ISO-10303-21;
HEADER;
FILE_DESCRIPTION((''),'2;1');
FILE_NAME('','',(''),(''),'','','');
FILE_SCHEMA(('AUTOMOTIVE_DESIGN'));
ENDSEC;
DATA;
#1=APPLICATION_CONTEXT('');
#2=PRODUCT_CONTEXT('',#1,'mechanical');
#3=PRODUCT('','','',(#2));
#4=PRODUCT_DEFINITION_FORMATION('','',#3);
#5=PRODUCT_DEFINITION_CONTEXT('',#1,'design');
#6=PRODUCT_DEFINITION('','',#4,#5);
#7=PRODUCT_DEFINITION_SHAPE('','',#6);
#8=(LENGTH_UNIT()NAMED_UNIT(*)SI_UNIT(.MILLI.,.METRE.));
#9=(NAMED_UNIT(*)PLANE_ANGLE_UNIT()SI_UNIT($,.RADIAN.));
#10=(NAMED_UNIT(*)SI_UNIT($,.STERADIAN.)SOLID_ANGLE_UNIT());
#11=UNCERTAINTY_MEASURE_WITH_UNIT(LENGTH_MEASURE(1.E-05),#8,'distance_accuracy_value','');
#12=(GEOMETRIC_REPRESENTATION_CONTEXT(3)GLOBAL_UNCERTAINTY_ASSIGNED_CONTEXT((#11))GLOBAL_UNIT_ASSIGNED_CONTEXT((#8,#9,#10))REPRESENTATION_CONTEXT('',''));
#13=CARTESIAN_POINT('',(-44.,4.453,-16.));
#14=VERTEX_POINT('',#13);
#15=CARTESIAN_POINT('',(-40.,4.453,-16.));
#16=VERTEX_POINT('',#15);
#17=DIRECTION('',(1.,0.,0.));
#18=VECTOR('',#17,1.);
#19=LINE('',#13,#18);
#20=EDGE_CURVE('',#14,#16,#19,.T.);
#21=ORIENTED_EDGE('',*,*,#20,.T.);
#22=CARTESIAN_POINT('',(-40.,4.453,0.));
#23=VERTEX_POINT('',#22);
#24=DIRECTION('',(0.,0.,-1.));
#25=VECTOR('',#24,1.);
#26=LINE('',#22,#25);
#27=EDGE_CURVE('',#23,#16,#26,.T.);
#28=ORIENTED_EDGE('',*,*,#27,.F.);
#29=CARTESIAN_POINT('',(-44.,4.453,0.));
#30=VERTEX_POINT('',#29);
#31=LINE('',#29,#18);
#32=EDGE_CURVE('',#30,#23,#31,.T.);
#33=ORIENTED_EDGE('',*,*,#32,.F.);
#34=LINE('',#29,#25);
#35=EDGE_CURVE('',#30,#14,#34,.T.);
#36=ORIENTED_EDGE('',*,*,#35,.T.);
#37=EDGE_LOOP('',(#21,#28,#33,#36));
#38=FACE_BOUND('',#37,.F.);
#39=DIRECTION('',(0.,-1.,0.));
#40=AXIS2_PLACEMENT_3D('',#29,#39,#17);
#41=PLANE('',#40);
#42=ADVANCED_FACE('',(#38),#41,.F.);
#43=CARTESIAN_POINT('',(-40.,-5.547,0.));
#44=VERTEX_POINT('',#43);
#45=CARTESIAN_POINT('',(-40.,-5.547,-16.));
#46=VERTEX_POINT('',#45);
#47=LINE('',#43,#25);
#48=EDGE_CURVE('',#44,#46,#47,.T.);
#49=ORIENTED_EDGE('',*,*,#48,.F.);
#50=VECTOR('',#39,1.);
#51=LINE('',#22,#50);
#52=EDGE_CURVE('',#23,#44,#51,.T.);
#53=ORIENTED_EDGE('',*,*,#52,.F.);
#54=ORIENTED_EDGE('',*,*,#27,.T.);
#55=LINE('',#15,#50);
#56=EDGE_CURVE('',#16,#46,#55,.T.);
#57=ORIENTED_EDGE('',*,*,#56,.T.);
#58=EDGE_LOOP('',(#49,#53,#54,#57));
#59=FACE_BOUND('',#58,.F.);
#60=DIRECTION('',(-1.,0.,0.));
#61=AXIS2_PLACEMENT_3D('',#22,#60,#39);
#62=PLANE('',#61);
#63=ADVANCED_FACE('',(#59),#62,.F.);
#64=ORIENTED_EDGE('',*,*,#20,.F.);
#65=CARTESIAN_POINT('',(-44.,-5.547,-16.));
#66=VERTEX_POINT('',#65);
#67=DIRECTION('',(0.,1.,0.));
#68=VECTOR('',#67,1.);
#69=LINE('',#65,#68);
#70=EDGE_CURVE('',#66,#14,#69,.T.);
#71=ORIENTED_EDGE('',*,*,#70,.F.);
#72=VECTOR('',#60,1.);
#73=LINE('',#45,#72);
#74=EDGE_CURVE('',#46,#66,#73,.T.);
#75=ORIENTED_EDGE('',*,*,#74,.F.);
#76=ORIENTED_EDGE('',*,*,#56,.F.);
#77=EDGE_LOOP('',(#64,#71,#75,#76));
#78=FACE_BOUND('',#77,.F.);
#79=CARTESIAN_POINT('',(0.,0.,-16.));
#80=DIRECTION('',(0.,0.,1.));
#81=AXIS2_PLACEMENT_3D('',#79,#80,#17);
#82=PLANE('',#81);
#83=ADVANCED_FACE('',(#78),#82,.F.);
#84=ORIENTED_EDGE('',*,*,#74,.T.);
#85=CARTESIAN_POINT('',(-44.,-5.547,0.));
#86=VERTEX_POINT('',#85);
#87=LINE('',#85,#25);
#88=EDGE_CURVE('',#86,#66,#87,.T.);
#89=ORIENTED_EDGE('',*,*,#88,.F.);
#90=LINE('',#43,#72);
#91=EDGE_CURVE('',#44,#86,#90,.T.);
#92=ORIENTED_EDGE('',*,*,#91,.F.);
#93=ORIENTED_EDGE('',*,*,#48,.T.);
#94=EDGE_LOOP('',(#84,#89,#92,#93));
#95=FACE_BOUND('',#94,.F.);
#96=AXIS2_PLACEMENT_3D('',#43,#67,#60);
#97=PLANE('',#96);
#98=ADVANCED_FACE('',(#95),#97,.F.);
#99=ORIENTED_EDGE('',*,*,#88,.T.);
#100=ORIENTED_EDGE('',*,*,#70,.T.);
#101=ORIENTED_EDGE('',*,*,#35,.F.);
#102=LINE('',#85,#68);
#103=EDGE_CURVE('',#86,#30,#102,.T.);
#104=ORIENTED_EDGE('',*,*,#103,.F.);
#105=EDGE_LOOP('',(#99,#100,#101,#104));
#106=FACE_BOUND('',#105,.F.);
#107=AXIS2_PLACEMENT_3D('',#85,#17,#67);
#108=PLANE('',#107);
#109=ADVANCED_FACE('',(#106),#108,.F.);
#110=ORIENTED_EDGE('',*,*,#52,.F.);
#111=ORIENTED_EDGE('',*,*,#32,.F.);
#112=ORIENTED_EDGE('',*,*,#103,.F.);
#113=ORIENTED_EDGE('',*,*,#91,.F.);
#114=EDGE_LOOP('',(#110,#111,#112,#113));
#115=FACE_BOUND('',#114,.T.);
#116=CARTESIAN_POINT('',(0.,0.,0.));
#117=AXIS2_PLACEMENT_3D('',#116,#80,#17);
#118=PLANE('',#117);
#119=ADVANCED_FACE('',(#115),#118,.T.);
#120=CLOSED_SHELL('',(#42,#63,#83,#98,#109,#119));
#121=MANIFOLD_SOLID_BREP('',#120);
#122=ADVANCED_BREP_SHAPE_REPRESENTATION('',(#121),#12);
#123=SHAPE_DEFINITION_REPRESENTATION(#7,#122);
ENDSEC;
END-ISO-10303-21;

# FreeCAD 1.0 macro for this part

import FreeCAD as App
import Part
import Sketcher
from FreeCAD import Vector

doc = App.newDocument("Part")
body = doc.addObject("PartDesign::Body", "Body")

sketch1 = doc.addObject("Sketcher::SketchObject", "Sketch")
body.addObject(sketch1)
sketch1.AttachmentSupport = (doc.XY_Plane, [""])
sketch1.MapMode = "FlatFace"
sketch1.addGeometry([
    Part.LineSegment(Vector(-40, -5.5, 0), Vector(-40, 4.5, 0)),
    Part.LineSegment(Vector(-40, 4.5, 0), Vector(-44, 4.5, 0)),
    Part.LineSegment(Vector(-44, 4.5, 0), Vector(-44, -5.5, 0)),
    Part.LineSegment(Vector(-44, -5.5, 0), Vector(-40, -5.5, 0)),
], False)
sketch1.addConstraint([
    Sketcher.Constraint("Coincident", 0, 2, 1, 1),
    Sketcher.Constraint("Coincident", 1, 2, 2, 1),
    Sketcher.Constraint("Coincident", 2, 2, 3, 1),
    Sketcher.Constraint("Coincident", 3, 2, 0, 1),
    Sketcher.Constraint("Vertical", 0),
    Sketcher.Constraint("Horizontal", 1),
    Sketcher.Constraint("Vertical", 2),
    Sketcher.Constraint("Horizontal", 3),
    Sketcher.Constraint("DistanceX", 1, 2, 1, 1, 4.0),
    Sketcher.Constraint("DistanceY", 0, 1, 0, 2, 10.0),
    Sketcher.Constraint("DistanceX", 0, 2, -1, 1, 40.0),
    Sketcher.Constraint("DistanceY", -1, 1, 0, 2, 4.453),
])
pad1 = doc.addObject("PartDesign::Pad", "Pad")
body.addObject(pad1)
pad1.Profile = sketch1
pad1.Length = 16
pad1.Reversed = True

doc.recompute()
